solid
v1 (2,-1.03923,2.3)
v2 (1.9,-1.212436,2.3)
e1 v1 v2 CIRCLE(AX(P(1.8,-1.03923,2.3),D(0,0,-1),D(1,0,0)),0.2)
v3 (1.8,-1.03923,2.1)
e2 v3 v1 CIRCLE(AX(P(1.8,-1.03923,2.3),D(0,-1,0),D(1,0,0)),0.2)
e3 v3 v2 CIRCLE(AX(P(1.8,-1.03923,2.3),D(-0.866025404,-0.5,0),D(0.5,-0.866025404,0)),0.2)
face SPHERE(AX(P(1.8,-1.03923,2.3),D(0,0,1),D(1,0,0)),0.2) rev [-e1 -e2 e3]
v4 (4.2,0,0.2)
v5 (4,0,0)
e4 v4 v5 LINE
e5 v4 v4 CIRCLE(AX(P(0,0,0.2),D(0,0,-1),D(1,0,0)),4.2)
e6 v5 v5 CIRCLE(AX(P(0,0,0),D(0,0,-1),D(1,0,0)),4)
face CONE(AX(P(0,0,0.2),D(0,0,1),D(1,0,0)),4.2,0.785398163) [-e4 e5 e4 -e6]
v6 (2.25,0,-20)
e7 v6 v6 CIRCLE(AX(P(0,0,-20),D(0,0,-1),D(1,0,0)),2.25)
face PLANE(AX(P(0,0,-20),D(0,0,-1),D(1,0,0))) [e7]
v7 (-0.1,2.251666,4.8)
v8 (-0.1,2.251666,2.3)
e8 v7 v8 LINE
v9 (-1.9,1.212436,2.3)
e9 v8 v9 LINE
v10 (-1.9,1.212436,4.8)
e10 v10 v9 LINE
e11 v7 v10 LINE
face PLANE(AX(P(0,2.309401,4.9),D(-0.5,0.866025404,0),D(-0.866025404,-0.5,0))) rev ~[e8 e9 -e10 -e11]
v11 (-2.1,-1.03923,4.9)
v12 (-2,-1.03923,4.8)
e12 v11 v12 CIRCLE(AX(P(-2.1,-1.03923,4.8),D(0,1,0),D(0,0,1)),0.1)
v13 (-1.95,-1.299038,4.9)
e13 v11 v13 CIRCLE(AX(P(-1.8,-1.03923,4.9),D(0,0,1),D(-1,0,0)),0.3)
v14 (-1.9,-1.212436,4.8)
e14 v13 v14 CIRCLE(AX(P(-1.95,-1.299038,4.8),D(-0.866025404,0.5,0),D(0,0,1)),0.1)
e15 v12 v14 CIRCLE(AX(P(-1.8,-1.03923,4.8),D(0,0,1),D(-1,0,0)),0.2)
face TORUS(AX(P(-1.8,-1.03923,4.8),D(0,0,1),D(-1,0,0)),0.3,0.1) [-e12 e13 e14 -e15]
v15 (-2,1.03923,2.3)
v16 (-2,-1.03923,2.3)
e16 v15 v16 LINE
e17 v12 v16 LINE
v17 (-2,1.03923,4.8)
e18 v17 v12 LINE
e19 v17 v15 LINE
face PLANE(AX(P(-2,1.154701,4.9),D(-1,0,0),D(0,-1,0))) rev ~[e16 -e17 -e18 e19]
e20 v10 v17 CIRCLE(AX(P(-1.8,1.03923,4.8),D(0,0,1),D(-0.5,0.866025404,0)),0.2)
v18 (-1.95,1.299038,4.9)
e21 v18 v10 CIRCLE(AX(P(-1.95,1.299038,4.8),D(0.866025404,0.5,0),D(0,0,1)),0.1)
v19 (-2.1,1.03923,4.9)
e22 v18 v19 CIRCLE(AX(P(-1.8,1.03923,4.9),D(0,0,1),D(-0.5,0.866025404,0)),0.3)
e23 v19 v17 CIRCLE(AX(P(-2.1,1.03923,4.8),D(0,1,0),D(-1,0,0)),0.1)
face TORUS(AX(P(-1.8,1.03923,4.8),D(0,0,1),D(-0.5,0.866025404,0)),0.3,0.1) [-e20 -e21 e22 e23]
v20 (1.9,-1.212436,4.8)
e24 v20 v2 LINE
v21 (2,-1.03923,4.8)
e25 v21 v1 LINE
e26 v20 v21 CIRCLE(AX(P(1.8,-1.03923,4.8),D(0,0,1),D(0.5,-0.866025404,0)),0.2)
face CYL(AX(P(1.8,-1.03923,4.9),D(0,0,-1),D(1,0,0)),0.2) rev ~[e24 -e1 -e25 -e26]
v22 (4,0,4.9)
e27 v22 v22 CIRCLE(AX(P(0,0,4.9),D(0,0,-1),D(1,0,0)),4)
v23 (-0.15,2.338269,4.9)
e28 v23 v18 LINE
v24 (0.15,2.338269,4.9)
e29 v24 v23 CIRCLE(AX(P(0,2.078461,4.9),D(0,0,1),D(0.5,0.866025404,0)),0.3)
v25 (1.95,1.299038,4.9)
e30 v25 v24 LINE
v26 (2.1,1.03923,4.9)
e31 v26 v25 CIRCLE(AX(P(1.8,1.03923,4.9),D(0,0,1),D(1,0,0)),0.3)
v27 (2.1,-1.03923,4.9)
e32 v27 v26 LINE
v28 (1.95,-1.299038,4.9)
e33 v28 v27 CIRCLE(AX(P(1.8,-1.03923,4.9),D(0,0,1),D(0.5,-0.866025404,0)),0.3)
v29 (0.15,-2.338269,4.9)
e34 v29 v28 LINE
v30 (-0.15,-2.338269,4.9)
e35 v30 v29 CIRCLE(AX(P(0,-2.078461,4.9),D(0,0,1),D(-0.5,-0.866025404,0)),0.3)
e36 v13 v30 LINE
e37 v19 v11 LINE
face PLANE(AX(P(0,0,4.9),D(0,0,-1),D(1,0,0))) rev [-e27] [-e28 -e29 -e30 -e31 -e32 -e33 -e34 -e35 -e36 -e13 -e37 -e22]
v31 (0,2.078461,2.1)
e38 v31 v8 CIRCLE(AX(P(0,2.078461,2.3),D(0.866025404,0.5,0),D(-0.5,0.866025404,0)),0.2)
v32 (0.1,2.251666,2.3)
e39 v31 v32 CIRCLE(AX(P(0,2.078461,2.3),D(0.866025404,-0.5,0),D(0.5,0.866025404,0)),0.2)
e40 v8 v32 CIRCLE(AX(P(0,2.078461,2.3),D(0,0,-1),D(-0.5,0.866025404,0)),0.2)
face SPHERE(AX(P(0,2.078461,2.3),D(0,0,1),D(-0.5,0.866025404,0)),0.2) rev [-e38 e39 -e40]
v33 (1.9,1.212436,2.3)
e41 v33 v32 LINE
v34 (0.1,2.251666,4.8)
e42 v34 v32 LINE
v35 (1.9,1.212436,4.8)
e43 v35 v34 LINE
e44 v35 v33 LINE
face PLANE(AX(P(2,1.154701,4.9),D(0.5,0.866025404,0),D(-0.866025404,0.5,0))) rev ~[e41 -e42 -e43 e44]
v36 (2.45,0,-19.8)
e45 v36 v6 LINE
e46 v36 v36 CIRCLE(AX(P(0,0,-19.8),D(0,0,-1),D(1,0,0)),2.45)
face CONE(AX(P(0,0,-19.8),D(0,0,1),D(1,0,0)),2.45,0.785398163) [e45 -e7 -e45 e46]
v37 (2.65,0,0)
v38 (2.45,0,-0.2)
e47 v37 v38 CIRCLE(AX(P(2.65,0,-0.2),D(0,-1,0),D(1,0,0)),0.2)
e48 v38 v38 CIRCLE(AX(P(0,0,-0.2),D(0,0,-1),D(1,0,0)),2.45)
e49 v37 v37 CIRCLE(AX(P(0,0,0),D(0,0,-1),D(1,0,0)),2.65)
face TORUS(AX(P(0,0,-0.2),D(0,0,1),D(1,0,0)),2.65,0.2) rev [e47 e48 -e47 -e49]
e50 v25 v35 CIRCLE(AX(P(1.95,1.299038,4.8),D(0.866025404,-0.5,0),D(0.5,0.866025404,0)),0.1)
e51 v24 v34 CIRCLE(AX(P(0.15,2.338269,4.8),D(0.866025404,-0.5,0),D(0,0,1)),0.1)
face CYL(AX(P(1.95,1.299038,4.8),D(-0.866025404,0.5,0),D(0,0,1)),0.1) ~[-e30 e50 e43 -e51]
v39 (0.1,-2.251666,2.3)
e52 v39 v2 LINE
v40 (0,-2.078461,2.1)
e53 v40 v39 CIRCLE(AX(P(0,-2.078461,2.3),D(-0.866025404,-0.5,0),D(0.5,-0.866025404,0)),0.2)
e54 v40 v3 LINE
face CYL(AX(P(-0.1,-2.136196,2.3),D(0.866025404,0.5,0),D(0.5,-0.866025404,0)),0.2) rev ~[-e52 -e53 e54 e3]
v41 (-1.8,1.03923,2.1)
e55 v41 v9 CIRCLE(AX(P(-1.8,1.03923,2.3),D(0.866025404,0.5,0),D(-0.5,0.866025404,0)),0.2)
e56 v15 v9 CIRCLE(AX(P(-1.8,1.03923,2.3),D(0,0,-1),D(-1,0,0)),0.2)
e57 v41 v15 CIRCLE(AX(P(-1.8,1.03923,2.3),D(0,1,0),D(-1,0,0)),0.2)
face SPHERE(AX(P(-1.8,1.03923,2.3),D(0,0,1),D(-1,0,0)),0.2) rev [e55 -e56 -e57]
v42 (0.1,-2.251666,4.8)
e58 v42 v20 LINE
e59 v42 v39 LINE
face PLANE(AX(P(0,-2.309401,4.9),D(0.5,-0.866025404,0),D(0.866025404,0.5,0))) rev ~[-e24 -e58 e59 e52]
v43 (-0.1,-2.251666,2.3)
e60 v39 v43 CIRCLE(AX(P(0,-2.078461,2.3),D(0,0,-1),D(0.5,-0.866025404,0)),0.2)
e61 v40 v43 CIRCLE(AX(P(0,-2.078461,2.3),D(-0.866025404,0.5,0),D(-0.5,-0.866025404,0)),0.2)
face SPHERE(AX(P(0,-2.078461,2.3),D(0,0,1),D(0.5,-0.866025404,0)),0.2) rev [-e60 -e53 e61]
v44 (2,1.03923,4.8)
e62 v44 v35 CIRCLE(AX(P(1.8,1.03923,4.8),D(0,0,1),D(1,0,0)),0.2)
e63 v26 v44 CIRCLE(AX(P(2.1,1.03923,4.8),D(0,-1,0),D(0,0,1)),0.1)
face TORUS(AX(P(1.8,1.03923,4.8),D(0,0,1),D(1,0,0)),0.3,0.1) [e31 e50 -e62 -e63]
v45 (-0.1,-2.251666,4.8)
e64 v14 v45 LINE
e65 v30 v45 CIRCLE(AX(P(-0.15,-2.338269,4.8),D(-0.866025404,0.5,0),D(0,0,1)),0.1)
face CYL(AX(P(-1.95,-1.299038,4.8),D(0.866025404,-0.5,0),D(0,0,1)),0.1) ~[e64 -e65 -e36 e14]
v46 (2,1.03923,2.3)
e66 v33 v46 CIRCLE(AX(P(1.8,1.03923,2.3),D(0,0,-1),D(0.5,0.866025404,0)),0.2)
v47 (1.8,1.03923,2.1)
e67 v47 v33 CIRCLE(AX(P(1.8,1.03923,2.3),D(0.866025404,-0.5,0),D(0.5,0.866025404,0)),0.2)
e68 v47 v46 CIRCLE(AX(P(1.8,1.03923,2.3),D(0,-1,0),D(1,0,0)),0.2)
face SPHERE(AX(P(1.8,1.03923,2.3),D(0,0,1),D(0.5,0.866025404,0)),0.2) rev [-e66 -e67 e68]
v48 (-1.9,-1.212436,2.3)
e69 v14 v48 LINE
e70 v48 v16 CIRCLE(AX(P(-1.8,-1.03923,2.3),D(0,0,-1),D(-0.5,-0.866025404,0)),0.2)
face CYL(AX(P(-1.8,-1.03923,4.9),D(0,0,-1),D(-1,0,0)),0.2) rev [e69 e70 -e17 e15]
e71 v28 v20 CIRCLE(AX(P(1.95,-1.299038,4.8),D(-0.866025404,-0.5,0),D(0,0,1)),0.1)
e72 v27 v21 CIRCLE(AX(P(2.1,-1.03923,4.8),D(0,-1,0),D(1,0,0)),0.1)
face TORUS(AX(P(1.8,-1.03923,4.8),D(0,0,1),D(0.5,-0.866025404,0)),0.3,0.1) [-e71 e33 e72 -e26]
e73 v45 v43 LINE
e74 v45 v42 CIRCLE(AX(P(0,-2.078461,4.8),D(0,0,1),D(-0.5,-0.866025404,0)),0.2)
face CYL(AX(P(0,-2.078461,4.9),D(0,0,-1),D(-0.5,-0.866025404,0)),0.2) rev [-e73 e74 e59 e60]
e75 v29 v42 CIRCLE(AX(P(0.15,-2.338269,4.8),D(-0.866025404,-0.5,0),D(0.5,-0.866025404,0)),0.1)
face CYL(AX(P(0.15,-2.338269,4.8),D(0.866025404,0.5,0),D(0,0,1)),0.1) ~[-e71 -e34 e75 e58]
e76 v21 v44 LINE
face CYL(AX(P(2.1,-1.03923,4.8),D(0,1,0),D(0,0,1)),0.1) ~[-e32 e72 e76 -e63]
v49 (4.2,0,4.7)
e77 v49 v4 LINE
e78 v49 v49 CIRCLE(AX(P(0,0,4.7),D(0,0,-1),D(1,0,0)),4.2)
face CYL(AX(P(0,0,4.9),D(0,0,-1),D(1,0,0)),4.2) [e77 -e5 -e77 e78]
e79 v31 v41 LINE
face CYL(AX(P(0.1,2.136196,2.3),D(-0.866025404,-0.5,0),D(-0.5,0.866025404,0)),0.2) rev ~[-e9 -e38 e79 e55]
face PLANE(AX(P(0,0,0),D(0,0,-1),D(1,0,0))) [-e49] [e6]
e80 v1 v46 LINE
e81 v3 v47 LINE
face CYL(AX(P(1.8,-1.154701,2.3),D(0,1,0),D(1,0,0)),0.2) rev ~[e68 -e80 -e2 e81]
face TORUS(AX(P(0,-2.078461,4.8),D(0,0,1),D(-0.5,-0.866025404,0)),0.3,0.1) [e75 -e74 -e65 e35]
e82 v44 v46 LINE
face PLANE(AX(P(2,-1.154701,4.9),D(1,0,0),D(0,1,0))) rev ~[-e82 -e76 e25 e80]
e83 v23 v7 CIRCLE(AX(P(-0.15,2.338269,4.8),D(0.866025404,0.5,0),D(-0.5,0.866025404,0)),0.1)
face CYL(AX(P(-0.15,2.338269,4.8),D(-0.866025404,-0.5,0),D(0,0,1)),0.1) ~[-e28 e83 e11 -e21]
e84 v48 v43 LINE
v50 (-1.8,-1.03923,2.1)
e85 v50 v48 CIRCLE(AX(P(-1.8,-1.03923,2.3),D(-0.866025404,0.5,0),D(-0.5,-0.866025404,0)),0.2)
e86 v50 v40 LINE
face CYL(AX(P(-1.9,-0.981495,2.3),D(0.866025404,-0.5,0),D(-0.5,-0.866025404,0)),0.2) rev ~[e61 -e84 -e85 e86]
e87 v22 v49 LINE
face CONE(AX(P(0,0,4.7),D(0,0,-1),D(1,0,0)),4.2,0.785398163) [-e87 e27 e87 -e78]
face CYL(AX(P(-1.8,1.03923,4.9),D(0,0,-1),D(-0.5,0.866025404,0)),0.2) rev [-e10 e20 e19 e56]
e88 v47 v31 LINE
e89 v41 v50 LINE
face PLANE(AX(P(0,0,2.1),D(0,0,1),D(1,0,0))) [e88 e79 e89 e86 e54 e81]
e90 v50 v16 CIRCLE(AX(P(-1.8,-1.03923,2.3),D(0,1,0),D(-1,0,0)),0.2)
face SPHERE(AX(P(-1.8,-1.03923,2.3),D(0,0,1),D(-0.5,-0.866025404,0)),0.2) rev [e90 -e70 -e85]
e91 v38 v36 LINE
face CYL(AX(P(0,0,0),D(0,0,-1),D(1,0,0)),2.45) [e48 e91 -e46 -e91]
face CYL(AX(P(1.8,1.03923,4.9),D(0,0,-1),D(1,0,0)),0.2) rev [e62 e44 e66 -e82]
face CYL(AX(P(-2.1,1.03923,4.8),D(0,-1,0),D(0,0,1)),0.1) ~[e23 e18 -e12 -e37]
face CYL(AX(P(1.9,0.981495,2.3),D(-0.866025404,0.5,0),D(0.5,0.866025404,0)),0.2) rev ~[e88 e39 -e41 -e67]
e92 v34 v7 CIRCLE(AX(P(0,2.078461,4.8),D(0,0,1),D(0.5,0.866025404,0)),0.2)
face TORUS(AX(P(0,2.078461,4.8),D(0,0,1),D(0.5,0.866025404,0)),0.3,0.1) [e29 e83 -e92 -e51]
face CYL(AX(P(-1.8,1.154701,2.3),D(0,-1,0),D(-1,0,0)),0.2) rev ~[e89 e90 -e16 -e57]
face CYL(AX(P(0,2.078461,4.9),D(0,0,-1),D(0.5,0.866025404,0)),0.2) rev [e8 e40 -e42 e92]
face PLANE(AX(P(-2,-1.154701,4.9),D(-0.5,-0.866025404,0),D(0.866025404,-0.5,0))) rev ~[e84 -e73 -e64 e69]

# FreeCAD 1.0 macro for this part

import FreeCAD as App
import Part
import Sketcher
from FreeCAD import Vector
Q = App.Units.Quantity


def edges_at(feature, points):
    """Names of the edges that pass closest to the given points."""
    edges = feature.Shape.Edges
    near = lambda p: min(range(len(edges)), key=lambda i: edges[i].distToShape(Part.Vertex(*p))[0])
    return sorted({f"Edge{near(p) + 1}" for p in points})

doc = App.newDocument("Part")
body = doc.addObject("PartDesign::Body", "Body")

# Sketch on YZ plane
sketch1 = doc.addObject("Sketcher::SketchObject", "Sketch")
body.addObject(sketch1)
sketch1.AttachmentSupport = (doc.YZ_Plane, [""])
sketch1.MapMode = "FlatFace"
sketch1.addGeometry([
    Part.LineSegment(Vector(4.2, 4.9, 0), Vector(0, 4.9, 0)),  # 0
    Part.LineSegment(Vector(0, 4.9, 0), Vector(0, -20, 0)),  # 1
    Part.LineSegment(Vector(0, -20, 0), Vector(2.5, -20, 0)),  # 2
    Part.LineSegment(Vector(2.5, -20, 0), Vector(2.5, 0, 0)),  # 3
    Part.LineSegment(Vector(2.5, 0, 0), Vector(4.2, 0, 0)),  # 4
    Part.LineSegment(Vector(4.2, 0, 0), Vector(4.2, 4.9, 0)),  # 5
], False)
sketch1.addConstraint([
    Sketcher.Constraint("Coincident", 0, 2, 1, 1),
    Sketcher.Constraint("Coincident", 1, 2, 2, 1),
    Sketcher.Constraint("Coincident", 2, 2, 3, 1),
    Sketcher.Constraint("Coincident", 3, 2, 4, 1),
    Sketcher.Constraint("Coincident", 4, 2, 5, 1),
    Sketcher.Constraint("Coincident", 5, 2, 0, 1),
    Sketcher.Constraint("Horizontal", 0),
    Sketcher.Constraint("Vertical", 1),
    Sketcher.Constraint("Horizontal", 2),
    Sketcher.Constraint("Vertical", 3),
    Sketcher.Constraint("Horizontal", 4),
    Sketcher.Constraint("Vertical", 5),
    Sketcher.Constraint("PointOnObject", 0, 2, -2),
    Sketcher.Constraint("PointOnObject", 3, 2, -1),
    Sketcher.Constraint("DistanceY", 3, 1, 3, 2, 20.0),
    Sketcher.Constraint("DistanceX", 0, 2, 0, 1, 4.2),
    Sketcher.Constraint("DistanceY", 1, 2, 1, 1, 24.9),
    Sketcher.Constraint("DistanceX", 2, 1, 2, 2, 2.45),
])
revolution = doc.addObject("PartDesign::Revolution", "Revolution")
body.addObject(revolution)
revolution.Profile = sketch1
revolution.ReferenceAxis = (sketch1, ["V_Axis"])
revolution.Angle = 360

# Sketch on XY plane
sketch2 = doc.addObject("Sketcher::SketchObject", "Sketch001")
body.addObject(sketch2)
sketch2.AttachmentSupport = (doc.XY_Plane, [""])
sketch2.MapMode = "FlatFace"
sketch2.AttachmentOffset = App.Placement(Vector(0, 0, 4.9), App.Rotation())
sketch2.addGeometry([
    Part.LineSegment(Vector(2, -1.2, 0), Vector(2, 1.2, 0)),  # 0
    Part.LineSegment(Vector(2, 1.2, 0), Vector(0, 2.3, 0)),  # 1
    Part.LineSegment(Vector(0, 2.3, 0), Vector(-2, 1.2, 0)),  # 2
    Part.LineSegment(Vector(-2, 1.2, 0), Vector(-2, -1.2, 0)),  # 3
    Part.LineSegment(Vector(-2, -1.2, 0), Vector(0, -2.3, 0)),  # 4
    Part.LineSegment(Vector(0, -2.3, 0), Vector(2, -1.2, 0)),  # 5
], False)
sketch2.addConstraint([
    Sketcher.Constraint("Coincident", 0, 2, 1, 1),
    Sketcher.Constraint("Coincident", 1, 2, 2, 1),
    Sketcher.Constraint("Coincident", 2, 2, 3, 1),
    Sketcher.Constraint("Coincident", 3, 2, 4, 1),
    Sketcher.Constraint("Coincident", 4, 2, 5, 1),
    Sketcher.Constraint("Coincident", 5, 2, 0, 1),
    Sketcher.Constraint("Vertical", 0),
    Sketcher.Constraint("Vertical", 3),
    Sketcher.Constraint("Symmetric", 0, 2, 3, 2, -1, 1),
    Sketcher.Constraint("Symmetric", 1, 2, 4, 2, -1, 1),
    Sketcher.Constraint("PointOnObject", 1, 2, -2),
    Sketcher.Constraint("Parallel", 2, 5),
    Sketcher.Constraint("Horizontal", 0, 2, 2, 2),
    Sketcher.Constraint("Angle", 1, Q("150 deg")),
    Sketcher.Constraint("DistanceX", -1, 1, 0, 2, 2.0),
    Sketcher.Constraint("DistanceY", 0, 1, 0, 2, 2.309401),
])
pocket1 = doc.addObject("PartDesign::Pocket", "Pocket")
body.addObject(pocket1)
pocket1.Profile = sketch2
pocket1.Length = 2.8
doc.recompute()

chamfer = doc.addObject("PartDesign::Chamfer", "Chamfer")
body.addObject(chamfer)
chamfer.Base = (pocket1, edges_at(pocket1, [(-2.45, 0, -20), (-4.2, 0, 0), (-4.2, 0, 4.9)]))
chamfer.Size = 0.2
doc.recompute()

fillet = doc.addObject("PartDesign::Fillet", "Fillet")
body.addObject(fillet)
fillet.Base = (chamfer, edges_at(chamfer, [
    (1, -1.732, 2.1),
    (2, -1.155, 3.5),
    (-1, -1.732, 2.1),
    (0, -2.309, 3.5),
    (-2, 0, 2.1),
    (-2, -1.155, 3.5),
    (-1, 1.732, 2.1),
    (-2, 1.155, 3.5),
    (1, 1.732, 2.1),
    (0, 2.309, 3.5),
    (2, 0, 2.1),
    (2, 1.155, 3.5),
    (-2.45, 0, 0),
]))
fillet.Radius = 0.2
doc.recompute()

fillet2 = doc.addObject("PartDesign::Fillet", "Fillet001")
body.addObject(fillet2)
fillet2.Base = (fillet, edges_at(fillet, [
    (-1, -1.732, 4.9),
    (-2, 0, 4.9),
    (-1, 1.732, 4.9),
    (1, 1.732, 4.9),
    (2, 0, 4.9),
    (1, -1.732, 4.9),
    (-1.973, -1.139, 4.9),
    (0, -2.278, 4.9),
    (1.973, -1.139, 4.9),
    (1.973, 1.139, 4.9),
    (0, 2.278, 4.9),
    (-1.973, 1.139, 4.9),
]))
fillet2.Radius = 0.1

doc.recompute()
